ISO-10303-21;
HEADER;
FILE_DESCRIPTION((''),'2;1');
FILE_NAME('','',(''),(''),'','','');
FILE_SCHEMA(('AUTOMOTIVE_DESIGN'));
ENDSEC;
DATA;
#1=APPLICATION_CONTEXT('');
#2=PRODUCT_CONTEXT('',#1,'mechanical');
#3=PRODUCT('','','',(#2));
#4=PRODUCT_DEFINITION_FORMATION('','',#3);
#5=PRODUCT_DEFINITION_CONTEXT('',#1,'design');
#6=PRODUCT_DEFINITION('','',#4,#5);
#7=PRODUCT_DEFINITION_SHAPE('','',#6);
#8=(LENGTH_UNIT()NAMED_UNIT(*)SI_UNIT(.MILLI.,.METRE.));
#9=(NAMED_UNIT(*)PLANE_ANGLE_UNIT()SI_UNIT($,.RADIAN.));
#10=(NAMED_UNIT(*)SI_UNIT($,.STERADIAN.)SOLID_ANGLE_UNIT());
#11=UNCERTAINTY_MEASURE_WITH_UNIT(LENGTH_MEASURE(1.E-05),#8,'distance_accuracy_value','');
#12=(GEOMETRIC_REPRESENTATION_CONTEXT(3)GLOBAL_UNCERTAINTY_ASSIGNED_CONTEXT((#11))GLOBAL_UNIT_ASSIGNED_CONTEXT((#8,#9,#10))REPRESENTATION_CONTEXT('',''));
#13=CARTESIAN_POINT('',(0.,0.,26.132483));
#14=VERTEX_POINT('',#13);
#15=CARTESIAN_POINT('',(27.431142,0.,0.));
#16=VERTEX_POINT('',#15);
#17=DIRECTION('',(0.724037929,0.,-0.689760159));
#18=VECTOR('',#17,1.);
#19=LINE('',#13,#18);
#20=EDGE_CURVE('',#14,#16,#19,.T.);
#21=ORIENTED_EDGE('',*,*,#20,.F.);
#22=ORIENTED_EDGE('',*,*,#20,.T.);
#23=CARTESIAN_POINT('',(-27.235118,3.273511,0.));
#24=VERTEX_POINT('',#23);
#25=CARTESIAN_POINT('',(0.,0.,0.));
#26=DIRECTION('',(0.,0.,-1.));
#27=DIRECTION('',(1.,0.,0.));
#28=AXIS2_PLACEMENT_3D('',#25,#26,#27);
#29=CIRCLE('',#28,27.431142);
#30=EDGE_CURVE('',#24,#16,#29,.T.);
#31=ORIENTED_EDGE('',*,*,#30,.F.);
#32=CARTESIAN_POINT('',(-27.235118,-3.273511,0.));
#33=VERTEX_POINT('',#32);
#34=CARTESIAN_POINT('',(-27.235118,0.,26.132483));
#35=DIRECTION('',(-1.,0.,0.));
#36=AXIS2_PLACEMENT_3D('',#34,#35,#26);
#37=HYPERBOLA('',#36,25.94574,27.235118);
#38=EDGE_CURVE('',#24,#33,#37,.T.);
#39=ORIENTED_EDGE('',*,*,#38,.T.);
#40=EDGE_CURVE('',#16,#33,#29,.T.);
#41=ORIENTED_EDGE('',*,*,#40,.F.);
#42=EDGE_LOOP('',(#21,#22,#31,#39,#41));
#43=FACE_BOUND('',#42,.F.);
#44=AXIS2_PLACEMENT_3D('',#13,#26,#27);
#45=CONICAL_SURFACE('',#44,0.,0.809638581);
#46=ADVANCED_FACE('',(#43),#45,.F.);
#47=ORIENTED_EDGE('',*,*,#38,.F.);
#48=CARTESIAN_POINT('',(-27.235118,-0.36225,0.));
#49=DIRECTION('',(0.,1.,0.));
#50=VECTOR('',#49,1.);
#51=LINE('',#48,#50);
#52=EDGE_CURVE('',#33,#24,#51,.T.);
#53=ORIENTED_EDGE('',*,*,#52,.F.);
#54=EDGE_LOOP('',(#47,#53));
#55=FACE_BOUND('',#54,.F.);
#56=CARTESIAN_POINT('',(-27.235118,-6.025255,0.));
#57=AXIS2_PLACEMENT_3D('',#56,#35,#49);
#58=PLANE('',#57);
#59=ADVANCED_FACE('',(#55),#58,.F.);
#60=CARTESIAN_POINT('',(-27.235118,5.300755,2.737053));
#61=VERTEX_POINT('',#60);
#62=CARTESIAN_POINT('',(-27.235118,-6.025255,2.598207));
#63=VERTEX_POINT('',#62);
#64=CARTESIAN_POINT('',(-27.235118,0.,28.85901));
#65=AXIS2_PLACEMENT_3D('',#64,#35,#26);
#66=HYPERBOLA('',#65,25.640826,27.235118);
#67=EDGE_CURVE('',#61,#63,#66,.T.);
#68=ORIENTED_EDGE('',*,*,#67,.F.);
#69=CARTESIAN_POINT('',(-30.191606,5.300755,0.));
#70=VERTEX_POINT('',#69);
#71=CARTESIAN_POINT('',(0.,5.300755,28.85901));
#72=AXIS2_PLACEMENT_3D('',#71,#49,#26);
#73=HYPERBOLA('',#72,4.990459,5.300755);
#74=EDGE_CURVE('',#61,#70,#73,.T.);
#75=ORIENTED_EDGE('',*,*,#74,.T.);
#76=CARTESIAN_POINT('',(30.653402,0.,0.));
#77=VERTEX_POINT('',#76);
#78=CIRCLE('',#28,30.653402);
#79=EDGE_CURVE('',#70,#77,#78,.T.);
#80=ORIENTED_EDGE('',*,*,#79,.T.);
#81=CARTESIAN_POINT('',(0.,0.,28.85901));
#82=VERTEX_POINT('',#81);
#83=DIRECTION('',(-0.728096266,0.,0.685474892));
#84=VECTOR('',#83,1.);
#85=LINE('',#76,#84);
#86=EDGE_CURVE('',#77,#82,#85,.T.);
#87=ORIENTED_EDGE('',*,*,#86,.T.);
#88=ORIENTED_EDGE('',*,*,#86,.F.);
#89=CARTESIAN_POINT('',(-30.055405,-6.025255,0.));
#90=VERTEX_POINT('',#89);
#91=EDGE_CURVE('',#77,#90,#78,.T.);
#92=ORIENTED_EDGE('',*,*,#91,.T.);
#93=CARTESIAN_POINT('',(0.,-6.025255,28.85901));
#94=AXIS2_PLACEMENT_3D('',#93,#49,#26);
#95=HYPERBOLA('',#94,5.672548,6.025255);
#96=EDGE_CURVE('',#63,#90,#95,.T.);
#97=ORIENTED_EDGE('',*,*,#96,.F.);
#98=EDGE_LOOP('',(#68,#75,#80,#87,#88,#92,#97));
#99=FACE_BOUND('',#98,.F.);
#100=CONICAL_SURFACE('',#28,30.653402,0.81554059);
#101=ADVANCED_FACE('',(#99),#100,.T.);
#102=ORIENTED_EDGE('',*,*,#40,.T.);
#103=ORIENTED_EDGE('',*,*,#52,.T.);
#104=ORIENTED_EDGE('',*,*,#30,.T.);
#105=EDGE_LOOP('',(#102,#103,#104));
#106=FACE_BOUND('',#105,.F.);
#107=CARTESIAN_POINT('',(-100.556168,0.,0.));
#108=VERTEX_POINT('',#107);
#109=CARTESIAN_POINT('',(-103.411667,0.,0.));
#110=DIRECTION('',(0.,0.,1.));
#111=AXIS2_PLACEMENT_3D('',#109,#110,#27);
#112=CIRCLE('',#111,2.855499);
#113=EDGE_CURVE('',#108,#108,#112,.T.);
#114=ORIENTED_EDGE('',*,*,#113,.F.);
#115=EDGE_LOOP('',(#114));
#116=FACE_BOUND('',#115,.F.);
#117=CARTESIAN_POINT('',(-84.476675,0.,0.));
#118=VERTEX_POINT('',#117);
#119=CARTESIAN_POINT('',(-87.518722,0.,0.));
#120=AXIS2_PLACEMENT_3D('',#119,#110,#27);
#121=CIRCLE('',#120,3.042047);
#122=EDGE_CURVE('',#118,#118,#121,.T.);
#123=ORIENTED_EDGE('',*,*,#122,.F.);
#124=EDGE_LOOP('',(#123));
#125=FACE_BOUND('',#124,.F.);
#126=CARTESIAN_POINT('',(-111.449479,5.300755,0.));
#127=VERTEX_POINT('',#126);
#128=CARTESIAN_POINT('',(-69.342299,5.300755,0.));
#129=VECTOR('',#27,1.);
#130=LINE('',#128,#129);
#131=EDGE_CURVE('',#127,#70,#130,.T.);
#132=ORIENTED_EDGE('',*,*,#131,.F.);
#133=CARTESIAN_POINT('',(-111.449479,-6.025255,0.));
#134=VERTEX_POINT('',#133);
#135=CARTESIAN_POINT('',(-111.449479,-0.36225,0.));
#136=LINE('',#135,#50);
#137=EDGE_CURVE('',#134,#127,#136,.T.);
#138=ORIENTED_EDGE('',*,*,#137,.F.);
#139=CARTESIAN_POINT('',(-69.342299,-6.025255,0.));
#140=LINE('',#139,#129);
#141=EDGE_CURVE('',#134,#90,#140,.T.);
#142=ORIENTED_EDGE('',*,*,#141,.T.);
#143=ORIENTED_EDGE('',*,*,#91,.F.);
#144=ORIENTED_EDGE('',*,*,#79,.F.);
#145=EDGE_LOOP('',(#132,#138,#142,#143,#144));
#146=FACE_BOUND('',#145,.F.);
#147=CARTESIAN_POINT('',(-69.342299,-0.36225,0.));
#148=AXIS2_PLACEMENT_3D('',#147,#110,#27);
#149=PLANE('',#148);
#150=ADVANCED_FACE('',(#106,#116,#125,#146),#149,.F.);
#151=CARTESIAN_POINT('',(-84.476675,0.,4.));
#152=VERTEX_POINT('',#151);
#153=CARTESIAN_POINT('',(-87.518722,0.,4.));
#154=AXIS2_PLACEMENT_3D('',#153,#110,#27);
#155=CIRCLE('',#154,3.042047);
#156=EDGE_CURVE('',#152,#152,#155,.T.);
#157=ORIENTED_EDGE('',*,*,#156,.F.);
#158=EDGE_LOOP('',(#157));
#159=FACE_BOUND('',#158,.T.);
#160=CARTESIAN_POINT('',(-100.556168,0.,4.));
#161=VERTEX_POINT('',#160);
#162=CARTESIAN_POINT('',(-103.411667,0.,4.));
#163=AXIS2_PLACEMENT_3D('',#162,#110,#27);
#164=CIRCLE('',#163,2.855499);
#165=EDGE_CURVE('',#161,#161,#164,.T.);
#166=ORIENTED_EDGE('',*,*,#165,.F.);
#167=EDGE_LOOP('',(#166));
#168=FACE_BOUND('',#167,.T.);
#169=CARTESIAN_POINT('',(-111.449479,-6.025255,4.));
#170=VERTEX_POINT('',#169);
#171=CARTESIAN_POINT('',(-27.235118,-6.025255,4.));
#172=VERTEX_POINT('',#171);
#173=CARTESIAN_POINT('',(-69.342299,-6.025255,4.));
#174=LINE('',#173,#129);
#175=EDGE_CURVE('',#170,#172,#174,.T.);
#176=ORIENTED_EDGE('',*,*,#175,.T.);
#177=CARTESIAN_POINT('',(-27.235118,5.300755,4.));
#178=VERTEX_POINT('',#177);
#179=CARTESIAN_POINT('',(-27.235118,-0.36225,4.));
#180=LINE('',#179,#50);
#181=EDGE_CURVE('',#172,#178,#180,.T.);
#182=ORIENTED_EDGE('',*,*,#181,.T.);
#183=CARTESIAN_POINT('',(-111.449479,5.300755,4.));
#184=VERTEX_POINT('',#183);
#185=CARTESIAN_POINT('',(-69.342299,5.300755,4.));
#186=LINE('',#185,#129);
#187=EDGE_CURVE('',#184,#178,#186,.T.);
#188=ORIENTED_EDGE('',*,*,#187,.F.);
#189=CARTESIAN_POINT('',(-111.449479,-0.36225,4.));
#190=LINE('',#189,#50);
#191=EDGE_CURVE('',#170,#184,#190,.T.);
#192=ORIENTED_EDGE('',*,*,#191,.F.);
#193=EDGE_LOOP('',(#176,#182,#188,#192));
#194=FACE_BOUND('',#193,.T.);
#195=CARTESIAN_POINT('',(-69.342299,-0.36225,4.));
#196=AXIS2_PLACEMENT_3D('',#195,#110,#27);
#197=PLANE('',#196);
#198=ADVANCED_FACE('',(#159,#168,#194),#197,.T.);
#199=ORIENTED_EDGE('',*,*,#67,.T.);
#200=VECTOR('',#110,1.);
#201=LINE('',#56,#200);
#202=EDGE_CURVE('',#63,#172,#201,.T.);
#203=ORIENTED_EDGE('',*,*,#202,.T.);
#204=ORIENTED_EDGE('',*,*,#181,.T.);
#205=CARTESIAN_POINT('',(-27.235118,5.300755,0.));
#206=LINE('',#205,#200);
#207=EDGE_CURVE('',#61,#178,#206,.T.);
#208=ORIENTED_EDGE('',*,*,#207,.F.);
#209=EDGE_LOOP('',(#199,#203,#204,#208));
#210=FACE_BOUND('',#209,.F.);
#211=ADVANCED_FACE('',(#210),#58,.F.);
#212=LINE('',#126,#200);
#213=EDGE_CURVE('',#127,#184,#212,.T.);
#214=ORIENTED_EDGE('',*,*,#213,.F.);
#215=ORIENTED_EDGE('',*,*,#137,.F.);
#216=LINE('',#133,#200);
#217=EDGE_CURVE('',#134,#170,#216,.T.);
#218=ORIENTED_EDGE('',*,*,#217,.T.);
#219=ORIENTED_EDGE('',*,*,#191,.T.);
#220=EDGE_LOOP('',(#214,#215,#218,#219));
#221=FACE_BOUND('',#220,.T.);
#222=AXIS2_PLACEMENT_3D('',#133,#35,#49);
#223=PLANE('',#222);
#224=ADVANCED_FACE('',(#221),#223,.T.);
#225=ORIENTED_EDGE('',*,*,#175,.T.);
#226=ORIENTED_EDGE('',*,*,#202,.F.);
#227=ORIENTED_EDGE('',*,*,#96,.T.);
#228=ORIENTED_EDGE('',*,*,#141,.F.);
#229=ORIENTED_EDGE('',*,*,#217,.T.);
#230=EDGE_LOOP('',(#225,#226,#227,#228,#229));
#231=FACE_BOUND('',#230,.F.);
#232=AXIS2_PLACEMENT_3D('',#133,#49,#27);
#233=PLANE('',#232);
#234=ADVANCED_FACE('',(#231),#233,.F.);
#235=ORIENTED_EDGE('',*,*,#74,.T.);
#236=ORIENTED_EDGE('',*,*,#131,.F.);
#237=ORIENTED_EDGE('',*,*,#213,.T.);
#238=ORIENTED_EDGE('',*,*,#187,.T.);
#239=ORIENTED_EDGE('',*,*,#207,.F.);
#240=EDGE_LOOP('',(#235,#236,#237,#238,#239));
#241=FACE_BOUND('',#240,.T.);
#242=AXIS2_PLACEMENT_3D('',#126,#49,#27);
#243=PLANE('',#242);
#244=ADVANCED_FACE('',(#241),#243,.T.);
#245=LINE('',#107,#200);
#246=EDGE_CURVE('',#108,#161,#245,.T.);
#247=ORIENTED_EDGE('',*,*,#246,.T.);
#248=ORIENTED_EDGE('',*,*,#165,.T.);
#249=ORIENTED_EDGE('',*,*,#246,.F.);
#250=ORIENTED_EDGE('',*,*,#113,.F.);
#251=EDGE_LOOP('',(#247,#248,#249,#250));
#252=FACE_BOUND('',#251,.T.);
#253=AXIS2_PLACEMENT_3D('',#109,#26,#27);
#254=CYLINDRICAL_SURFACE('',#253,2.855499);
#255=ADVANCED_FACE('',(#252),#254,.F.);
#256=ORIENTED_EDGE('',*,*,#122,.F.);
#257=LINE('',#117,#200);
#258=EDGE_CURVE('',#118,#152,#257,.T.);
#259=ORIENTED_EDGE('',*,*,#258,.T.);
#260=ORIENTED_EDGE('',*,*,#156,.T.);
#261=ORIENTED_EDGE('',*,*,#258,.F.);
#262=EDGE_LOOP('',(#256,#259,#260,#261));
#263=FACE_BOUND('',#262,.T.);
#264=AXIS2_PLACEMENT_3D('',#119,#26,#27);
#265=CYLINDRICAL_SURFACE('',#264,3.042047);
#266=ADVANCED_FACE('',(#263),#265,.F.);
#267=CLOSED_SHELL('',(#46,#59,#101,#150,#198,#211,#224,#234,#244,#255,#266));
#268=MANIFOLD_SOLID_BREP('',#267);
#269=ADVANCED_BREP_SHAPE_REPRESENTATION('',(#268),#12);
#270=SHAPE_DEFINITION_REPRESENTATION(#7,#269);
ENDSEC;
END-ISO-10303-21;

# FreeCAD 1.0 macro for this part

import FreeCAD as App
import Part
import Sketcher
from FreeCAD import Vector
Q = App.Units.Quantity


def add_polygon(sketch, points):
    """Adds a closed chain of lines whose ends are joined by coincident constraints."""
    first, n = sketch.GeometryCount, len(points)
    for a, b in zip(points, points[1:] + points[:1]):
        sketch.addGeometry(Part.LineSegment(App.Vector(*a, 0), App.Vector(*b, 0)), False)
    for i in range(n):
        sketch.addConstraint(Sketcher.Constraint("Coincident", first + i, 2, first + (i + 1) % n, 1))

doc = App.newDocument("Part")
body = doc.addObject("PartDesign::Body", "Body")

# Sketch on XZ plane
sketch1 = body.newObject("Sketcher::SketchObject", "Sketch")
sketch1.AttachmentSupport = (doc.getObject("XZ_Plane"), [""])
sketch1.MapMode = "FlatFace"
add_polygon(sketch1, [(0, 28.9), (0, 26.1), (27.4, 0), (30.7, 0)])  # lines 0-3
sketch1.addConstraint(Sketcher.Constraint("Vertical", 0))
sketch1.addConstraint(Sketcher.Constraint("Horizontal", 2))
sketch1.addConstraint(Sketcher.Constraint("PointOnObject", 0, 2, -2))
sketch1.addConstraint(Sketcher.Constraint("PointOnObject", 1, 2, -1))
sketch1.addConstraint(Sketcher.Constraint("DistanceX", 2, 1, 2, 2, Q("3.22226 mm")))
sketch1.addConstraint(Sketcher.Constraint("DistanceX", -1, 1, 2, 2, Q("30.653402 mm")))
sketch1.addConstraint(Sketcher.Constraint("DistanceY", 0, 2, 0, 1, Q("2.726527 mm")))
sketch1.addConstraint(Sketcher.Constraint("DistanceY", -1, 1, 3, 2, Q("28.85901 mm")))
revolution = body.newObject("PartDesign::Revolution", "Revolution")
revolution.Profile = sketch1
revolution.ReferenceAxis = (sketch1, ["V_Axis"])
revolution.Angle = 360

# Sketch on XY plane
sketch2 = body.newObject("Sketcher::SketchObject", "Sketch001")
sketch2.AttachmentSupport = (doc.getObject("XY_Plane"), [""])
sketch2.MapMode = "FlatFace"
add_polygon(sketch2, [(-111.4, 5.3), (-111.4, -6), (-27.2, -6), (-27.2, 5.3)])  # lines 0-3
sketch2.addGeometry(Part.Circle(Vector(-103.4, 0, 0), Vector(0, 0, 1), 2.9), False)  # 4
sketch2.addGeometry(Part.Circle(Vector(-87.5, 0, 0), Vector(0, 0, 1), 3), False)  # 5
sketch2.addConstraint(Sketcher.Constraint("Vertical", 0))
sketch2.addConstraint(Sketcher.Constraint("Horizontal", 1))
sketch2.addConstraint(Sketcher.Constraint("Vertical", 2))
sketch2.addConstraint(Sketcher.Constraint("Horizontal", 3))
sketch2.addConstraint(Sketcher.Constraint("PointOnObject", 4, 3, -1))
sketch2.addConstraint(Sketcher.Constraint("PointOnObject", 5, 3, -1))
sketch2.addConstraint(Sketcher.Constraint("Diameter", 4, Q("5.710998 mm")))
sketch2.addConstraint(Sketcher.Constraint("Diameter", 5, Q("6.084094 mm")))
sketch2.addConstraint(Sketcher.Constraint("DistanceX", 1, 1, 1, 2, Q("84.214361 mm")))
sketch2.addConstraint(Sketcher.Constraint("DistanceY", 0, 2, 0, 1, Q("11.32601 mm")))
sketch2.addConstraint(Sketcher.Constraint("DistanceX", 5, 3, -1, 1, Q("87.518722 mm")))
sketch2.addConstraint(Sketcher.Constraint("DistanceX", 0, 2, -1, 1, Q("111.449479 mm")))
sketch2.addConstraint(Sketcher.Constraint("DistanceX", 4, 3, 1, 2, Q("76.176548 mm")))
sketch2.addConstraint(Sketcher.Constraint("DistanceY", 0, 2, -1, 1, Q("6.025255 mm")))
pad1 = body.newObject("PartDesign::Pad", "Pad")
pad1.Profile = sketch2
pad1.Length = 4

doc.recompute()
